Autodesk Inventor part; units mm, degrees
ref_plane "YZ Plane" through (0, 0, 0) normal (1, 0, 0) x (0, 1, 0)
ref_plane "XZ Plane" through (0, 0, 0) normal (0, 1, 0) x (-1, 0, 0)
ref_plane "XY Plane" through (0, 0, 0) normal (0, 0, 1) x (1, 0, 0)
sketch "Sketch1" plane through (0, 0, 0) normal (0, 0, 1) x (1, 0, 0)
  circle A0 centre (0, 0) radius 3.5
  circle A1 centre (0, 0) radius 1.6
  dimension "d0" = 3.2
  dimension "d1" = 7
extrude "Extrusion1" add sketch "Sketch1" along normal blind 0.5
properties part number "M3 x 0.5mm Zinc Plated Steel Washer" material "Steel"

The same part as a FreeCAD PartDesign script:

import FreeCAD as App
import Part
import Sketcher
from FreeCAD import Vector
Q = App.Units.Quantity

doc = App.newDocument("Part")
params = doc.addObject("Spreadsheet::Sheet", "Params")
for row, (alias, value) in enumerate([
    ("sketch1_diameter", "7 mm"),
    ("sketch1_diameter2", "3.2 mm"),
    ("pad1_length", "0.5 mm"),
], start=1):
    params.set(f"A{row}", alias)
    params.set(f"B{row}", "=" + value)
    params.setAlias(f"B{row}", alias)

body = doc.addObject("PartDesign::Body", "Body")

sketch1 = doc.addObject("Sketcher::SketchObject", "Sketch")
body.addObject(sketch1)
sketch1.AttachmentSupport = (doc.XY_Plane, [""])
sketch1.MapMode = "FlatFace"
sketch1.addGeometry(Part.Circle(Vector(0, 0, 0), Vector(0, 0, 1), 3.5), False)
sketch1.addGeometry(Part.Circle(Vector(0, 0, 0), Vector(0, 0, 1), 1.6), False)
sketch1.addConstraint(Sketcher.Constraint("Coincident", 0, 3, -1, 1))
sketch1.addConstraint(Sketcher.Constraint("Coincident", 1, 3, -1, 1))
sketch1.addConstraint(Sketcher.Constraint("Diameter", 0, Q("7 mm")))
sketch1.addConstraint(Sketcher.Constraint("Diameter", 1, Q("3.2 mm")))
sketch1.setExpression("Constraints[2]", "Params.sketch1_diameter")
sketch1.setExpression("Constraints[3]", "Params.sketch1_diameter2")
pad1 = doc.addObject("PartDesign::Pad", "Pad")
body.addObject(pad1)
pad1.Profile = sketch1
pad1.setExpression("Length", "Params.pad1_length")

doc.recompute()
